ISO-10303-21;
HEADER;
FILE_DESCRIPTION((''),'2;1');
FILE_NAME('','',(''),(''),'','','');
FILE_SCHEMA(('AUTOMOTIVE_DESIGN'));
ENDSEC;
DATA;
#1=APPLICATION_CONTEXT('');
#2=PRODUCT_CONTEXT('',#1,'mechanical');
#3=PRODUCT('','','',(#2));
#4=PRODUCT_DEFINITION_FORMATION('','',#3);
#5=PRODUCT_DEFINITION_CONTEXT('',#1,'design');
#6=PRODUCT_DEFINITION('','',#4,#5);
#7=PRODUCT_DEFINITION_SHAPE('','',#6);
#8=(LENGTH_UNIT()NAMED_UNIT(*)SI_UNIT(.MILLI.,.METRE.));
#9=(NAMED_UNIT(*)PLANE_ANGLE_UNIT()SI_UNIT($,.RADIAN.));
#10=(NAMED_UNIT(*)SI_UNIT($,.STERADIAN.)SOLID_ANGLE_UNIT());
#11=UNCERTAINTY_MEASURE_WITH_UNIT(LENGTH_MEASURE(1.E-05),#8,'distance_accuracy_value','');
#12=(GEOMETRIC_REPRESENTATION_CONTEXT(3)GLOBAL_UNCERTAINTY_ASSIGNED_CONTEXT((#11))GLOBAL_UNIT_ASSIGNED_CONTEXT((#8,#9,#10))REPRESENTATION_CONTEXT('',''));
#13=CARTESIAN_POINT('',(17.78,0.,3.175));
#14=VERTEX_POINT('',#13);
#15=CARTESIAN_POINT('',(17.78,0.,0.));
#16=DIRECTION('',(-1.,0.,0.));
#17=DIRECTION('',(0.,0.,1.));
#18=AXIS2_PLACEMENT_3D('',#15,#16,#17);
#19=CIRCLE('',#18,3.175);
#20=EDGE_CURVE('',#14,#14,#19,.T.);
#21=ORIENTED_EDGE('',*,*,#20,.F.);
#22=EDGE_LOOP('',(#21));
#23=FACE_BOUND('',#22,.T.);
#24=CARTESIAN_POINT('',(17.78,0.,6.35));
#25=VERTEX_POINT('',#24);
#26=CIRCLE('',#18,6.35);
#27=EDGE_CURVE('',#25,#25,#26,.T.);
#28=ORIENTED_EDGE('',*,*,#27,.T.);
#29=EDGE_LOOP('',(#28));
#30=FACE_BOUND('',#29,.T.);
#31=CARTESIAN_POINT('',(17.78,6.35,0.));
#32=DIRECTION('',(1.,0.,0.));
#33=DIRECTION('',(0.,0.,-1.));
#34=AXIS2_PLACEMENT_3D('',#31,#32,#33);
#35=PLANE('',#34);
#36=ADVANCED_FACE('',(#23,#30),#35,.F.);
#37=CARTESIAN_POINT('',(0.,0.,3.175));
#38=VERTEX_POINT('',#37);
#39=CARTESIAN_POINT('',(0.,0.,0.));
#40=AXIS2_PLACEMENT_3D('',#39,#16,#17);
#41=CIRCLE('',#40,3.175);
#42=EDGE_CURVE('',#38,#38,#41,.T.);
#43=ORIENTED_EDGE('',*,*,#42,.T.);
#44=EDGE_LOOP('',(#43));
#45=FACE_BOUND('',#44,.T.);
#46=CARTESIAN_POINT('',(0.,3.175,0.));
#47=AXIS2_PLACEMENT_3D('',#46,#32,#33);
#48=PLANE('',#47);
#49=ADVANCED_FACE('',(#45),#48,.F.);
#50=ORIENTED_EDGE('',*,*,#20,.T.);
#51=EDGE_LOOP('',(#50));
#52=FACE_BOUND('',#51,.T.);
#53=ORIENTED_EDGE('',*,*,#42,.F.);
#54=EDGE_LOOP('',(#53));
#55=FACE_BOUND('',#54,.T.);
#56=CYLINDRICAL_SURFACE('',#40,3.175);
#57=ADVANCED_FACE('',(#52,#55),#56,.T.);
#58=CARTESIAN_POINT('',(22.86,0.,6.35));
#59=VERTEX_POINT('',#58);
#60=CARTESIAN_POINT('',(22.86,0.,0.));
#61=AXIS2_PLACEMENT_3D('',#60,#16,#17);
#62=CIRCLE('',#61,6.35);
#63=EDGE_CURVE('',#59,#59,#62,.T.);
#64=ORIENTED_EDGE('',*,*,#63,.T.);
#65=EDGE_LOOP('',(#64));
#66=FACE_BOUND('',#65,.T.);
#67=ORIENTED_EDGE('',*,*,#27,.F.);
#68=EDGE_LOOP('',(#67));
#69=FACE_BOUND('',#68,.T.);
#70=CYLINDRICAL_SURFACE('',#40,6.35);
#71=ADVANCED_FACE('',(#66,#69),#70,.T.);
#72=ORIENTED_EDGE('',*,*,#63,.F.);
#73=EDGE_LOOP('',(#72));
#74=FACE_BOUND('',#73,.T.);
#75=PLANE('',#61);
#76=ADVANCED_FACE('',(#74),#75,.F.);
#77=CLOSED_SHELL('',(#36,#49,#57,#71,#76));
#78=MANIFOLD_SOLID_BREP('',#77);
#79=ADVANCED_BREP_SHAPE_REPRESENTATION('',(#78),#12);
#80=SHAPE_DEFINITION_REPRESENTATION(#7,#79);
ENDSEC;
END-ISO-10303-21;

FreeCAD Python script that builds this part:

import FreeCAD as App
import Part
import Sketcher
Q = App.Units.Quantity

doc = App.newDocument("Part")
body = doc.addObject("PartDesign::Body", "Body")

# Sketch on XY plane
sketch1 = body.newObject("Sketcher::SketchObject", "Sketch")
sketch1.AttachmentSupport = (doc.getObject("XY_Plane"), [""])
sketch1.MapMode = "FlatFace"
sketch1.addGeometry(Part.LineSegment(App.Vector(0, 0, 0), App.Vector(22.9, 0, 0)), False)
sketch1.addGeometry(Part.LineSegment(App.Vector(22.9, 0, 0), App.Vector(22.9, 6.3, 0)), False)
sketch1.addGeometry(Part.LineSegment(App.Vector(22.9, 6.3, 0), App.Vector(17.8, 6.3, 0)), False)
sketch1.addGeometry(Part.LineSegment(App.Vector(17.8, 6.3, 0), App.Vector(17.8, 3.2, 0)), False)
sketch1.addGeometry(Part.LineSegment(App.Vector(17.8, 3.2, 0), App.Vector(0, 3.2, 0)), False)
sketch1.addGeometry(Part.LineSegment(App.Vector(0, 3.2, 0), App.Vector(0, 0, 0)), False)
sketch1.addConstraint(Sketcher.Constraint("Coincident", 0, 2, 1, 1))
sketch1.addConstraint(Sketcher.Constraint("Coincident", 1, 2, 2, 1))
sketch1.addConstraint(Sketcher.Constraint("Coincident", 2, 2, 3, 1))
sketch1.addConstraint(Sketcher.Constraint("Coincident", 3, 2, 4, 1))
sketch1.addConstraint(Sketcher.Constraint("Coincident", 4, 2, 5, 1))
sketch1.addConstraint(Sketcher.Constraint("Coincident", 5, 2, 0, 1))
sketch1.addConstraint(Sketcher.Constraint("Horizontal", 0))
sketch1.addConstraint(Sketcher.Constraint("Vertical", 1))
sketch1.addConstraint(Sketcher.Constraint("Horizontal", 2))
sketch1.addConstraint(Sketcher.Constraint("Vertical", 3))
sketch1.addConstraint(Sketcher.Constraint("Horizontal", 4))
sketch1.addConstraint(Sketcher.Constraint("Vertical", 5))
sketch1.addConstraint(Sketcher.Constraint("Coincident", 5, 2, -1, 1))
sketch1.addConstraint(Sketcher.Constraint("Equal", 3, 5))
sketch1.addConstraint(Sketcher.Constraint("DistanceX", 0, 1, 0, 2, Q("0.9 in")))
sketch1.addConstraint(Sketcher.Constraint("DistanceX", 2, 2, 2, 1, Q("0.2 in")))
sketch1.addConstraint(Sketcher.Constraint("DistanceY", 1, 1, 1, 2, Q("0.25 in")))
revolution = body.newObject("PartDesign::Revolution", "Revolution")
revolution.Profile = sketch1
revolution.ReferenceAxis = (sketch1, ["H_Axis"])
revolution.Angle = 360

doc.recompute()
